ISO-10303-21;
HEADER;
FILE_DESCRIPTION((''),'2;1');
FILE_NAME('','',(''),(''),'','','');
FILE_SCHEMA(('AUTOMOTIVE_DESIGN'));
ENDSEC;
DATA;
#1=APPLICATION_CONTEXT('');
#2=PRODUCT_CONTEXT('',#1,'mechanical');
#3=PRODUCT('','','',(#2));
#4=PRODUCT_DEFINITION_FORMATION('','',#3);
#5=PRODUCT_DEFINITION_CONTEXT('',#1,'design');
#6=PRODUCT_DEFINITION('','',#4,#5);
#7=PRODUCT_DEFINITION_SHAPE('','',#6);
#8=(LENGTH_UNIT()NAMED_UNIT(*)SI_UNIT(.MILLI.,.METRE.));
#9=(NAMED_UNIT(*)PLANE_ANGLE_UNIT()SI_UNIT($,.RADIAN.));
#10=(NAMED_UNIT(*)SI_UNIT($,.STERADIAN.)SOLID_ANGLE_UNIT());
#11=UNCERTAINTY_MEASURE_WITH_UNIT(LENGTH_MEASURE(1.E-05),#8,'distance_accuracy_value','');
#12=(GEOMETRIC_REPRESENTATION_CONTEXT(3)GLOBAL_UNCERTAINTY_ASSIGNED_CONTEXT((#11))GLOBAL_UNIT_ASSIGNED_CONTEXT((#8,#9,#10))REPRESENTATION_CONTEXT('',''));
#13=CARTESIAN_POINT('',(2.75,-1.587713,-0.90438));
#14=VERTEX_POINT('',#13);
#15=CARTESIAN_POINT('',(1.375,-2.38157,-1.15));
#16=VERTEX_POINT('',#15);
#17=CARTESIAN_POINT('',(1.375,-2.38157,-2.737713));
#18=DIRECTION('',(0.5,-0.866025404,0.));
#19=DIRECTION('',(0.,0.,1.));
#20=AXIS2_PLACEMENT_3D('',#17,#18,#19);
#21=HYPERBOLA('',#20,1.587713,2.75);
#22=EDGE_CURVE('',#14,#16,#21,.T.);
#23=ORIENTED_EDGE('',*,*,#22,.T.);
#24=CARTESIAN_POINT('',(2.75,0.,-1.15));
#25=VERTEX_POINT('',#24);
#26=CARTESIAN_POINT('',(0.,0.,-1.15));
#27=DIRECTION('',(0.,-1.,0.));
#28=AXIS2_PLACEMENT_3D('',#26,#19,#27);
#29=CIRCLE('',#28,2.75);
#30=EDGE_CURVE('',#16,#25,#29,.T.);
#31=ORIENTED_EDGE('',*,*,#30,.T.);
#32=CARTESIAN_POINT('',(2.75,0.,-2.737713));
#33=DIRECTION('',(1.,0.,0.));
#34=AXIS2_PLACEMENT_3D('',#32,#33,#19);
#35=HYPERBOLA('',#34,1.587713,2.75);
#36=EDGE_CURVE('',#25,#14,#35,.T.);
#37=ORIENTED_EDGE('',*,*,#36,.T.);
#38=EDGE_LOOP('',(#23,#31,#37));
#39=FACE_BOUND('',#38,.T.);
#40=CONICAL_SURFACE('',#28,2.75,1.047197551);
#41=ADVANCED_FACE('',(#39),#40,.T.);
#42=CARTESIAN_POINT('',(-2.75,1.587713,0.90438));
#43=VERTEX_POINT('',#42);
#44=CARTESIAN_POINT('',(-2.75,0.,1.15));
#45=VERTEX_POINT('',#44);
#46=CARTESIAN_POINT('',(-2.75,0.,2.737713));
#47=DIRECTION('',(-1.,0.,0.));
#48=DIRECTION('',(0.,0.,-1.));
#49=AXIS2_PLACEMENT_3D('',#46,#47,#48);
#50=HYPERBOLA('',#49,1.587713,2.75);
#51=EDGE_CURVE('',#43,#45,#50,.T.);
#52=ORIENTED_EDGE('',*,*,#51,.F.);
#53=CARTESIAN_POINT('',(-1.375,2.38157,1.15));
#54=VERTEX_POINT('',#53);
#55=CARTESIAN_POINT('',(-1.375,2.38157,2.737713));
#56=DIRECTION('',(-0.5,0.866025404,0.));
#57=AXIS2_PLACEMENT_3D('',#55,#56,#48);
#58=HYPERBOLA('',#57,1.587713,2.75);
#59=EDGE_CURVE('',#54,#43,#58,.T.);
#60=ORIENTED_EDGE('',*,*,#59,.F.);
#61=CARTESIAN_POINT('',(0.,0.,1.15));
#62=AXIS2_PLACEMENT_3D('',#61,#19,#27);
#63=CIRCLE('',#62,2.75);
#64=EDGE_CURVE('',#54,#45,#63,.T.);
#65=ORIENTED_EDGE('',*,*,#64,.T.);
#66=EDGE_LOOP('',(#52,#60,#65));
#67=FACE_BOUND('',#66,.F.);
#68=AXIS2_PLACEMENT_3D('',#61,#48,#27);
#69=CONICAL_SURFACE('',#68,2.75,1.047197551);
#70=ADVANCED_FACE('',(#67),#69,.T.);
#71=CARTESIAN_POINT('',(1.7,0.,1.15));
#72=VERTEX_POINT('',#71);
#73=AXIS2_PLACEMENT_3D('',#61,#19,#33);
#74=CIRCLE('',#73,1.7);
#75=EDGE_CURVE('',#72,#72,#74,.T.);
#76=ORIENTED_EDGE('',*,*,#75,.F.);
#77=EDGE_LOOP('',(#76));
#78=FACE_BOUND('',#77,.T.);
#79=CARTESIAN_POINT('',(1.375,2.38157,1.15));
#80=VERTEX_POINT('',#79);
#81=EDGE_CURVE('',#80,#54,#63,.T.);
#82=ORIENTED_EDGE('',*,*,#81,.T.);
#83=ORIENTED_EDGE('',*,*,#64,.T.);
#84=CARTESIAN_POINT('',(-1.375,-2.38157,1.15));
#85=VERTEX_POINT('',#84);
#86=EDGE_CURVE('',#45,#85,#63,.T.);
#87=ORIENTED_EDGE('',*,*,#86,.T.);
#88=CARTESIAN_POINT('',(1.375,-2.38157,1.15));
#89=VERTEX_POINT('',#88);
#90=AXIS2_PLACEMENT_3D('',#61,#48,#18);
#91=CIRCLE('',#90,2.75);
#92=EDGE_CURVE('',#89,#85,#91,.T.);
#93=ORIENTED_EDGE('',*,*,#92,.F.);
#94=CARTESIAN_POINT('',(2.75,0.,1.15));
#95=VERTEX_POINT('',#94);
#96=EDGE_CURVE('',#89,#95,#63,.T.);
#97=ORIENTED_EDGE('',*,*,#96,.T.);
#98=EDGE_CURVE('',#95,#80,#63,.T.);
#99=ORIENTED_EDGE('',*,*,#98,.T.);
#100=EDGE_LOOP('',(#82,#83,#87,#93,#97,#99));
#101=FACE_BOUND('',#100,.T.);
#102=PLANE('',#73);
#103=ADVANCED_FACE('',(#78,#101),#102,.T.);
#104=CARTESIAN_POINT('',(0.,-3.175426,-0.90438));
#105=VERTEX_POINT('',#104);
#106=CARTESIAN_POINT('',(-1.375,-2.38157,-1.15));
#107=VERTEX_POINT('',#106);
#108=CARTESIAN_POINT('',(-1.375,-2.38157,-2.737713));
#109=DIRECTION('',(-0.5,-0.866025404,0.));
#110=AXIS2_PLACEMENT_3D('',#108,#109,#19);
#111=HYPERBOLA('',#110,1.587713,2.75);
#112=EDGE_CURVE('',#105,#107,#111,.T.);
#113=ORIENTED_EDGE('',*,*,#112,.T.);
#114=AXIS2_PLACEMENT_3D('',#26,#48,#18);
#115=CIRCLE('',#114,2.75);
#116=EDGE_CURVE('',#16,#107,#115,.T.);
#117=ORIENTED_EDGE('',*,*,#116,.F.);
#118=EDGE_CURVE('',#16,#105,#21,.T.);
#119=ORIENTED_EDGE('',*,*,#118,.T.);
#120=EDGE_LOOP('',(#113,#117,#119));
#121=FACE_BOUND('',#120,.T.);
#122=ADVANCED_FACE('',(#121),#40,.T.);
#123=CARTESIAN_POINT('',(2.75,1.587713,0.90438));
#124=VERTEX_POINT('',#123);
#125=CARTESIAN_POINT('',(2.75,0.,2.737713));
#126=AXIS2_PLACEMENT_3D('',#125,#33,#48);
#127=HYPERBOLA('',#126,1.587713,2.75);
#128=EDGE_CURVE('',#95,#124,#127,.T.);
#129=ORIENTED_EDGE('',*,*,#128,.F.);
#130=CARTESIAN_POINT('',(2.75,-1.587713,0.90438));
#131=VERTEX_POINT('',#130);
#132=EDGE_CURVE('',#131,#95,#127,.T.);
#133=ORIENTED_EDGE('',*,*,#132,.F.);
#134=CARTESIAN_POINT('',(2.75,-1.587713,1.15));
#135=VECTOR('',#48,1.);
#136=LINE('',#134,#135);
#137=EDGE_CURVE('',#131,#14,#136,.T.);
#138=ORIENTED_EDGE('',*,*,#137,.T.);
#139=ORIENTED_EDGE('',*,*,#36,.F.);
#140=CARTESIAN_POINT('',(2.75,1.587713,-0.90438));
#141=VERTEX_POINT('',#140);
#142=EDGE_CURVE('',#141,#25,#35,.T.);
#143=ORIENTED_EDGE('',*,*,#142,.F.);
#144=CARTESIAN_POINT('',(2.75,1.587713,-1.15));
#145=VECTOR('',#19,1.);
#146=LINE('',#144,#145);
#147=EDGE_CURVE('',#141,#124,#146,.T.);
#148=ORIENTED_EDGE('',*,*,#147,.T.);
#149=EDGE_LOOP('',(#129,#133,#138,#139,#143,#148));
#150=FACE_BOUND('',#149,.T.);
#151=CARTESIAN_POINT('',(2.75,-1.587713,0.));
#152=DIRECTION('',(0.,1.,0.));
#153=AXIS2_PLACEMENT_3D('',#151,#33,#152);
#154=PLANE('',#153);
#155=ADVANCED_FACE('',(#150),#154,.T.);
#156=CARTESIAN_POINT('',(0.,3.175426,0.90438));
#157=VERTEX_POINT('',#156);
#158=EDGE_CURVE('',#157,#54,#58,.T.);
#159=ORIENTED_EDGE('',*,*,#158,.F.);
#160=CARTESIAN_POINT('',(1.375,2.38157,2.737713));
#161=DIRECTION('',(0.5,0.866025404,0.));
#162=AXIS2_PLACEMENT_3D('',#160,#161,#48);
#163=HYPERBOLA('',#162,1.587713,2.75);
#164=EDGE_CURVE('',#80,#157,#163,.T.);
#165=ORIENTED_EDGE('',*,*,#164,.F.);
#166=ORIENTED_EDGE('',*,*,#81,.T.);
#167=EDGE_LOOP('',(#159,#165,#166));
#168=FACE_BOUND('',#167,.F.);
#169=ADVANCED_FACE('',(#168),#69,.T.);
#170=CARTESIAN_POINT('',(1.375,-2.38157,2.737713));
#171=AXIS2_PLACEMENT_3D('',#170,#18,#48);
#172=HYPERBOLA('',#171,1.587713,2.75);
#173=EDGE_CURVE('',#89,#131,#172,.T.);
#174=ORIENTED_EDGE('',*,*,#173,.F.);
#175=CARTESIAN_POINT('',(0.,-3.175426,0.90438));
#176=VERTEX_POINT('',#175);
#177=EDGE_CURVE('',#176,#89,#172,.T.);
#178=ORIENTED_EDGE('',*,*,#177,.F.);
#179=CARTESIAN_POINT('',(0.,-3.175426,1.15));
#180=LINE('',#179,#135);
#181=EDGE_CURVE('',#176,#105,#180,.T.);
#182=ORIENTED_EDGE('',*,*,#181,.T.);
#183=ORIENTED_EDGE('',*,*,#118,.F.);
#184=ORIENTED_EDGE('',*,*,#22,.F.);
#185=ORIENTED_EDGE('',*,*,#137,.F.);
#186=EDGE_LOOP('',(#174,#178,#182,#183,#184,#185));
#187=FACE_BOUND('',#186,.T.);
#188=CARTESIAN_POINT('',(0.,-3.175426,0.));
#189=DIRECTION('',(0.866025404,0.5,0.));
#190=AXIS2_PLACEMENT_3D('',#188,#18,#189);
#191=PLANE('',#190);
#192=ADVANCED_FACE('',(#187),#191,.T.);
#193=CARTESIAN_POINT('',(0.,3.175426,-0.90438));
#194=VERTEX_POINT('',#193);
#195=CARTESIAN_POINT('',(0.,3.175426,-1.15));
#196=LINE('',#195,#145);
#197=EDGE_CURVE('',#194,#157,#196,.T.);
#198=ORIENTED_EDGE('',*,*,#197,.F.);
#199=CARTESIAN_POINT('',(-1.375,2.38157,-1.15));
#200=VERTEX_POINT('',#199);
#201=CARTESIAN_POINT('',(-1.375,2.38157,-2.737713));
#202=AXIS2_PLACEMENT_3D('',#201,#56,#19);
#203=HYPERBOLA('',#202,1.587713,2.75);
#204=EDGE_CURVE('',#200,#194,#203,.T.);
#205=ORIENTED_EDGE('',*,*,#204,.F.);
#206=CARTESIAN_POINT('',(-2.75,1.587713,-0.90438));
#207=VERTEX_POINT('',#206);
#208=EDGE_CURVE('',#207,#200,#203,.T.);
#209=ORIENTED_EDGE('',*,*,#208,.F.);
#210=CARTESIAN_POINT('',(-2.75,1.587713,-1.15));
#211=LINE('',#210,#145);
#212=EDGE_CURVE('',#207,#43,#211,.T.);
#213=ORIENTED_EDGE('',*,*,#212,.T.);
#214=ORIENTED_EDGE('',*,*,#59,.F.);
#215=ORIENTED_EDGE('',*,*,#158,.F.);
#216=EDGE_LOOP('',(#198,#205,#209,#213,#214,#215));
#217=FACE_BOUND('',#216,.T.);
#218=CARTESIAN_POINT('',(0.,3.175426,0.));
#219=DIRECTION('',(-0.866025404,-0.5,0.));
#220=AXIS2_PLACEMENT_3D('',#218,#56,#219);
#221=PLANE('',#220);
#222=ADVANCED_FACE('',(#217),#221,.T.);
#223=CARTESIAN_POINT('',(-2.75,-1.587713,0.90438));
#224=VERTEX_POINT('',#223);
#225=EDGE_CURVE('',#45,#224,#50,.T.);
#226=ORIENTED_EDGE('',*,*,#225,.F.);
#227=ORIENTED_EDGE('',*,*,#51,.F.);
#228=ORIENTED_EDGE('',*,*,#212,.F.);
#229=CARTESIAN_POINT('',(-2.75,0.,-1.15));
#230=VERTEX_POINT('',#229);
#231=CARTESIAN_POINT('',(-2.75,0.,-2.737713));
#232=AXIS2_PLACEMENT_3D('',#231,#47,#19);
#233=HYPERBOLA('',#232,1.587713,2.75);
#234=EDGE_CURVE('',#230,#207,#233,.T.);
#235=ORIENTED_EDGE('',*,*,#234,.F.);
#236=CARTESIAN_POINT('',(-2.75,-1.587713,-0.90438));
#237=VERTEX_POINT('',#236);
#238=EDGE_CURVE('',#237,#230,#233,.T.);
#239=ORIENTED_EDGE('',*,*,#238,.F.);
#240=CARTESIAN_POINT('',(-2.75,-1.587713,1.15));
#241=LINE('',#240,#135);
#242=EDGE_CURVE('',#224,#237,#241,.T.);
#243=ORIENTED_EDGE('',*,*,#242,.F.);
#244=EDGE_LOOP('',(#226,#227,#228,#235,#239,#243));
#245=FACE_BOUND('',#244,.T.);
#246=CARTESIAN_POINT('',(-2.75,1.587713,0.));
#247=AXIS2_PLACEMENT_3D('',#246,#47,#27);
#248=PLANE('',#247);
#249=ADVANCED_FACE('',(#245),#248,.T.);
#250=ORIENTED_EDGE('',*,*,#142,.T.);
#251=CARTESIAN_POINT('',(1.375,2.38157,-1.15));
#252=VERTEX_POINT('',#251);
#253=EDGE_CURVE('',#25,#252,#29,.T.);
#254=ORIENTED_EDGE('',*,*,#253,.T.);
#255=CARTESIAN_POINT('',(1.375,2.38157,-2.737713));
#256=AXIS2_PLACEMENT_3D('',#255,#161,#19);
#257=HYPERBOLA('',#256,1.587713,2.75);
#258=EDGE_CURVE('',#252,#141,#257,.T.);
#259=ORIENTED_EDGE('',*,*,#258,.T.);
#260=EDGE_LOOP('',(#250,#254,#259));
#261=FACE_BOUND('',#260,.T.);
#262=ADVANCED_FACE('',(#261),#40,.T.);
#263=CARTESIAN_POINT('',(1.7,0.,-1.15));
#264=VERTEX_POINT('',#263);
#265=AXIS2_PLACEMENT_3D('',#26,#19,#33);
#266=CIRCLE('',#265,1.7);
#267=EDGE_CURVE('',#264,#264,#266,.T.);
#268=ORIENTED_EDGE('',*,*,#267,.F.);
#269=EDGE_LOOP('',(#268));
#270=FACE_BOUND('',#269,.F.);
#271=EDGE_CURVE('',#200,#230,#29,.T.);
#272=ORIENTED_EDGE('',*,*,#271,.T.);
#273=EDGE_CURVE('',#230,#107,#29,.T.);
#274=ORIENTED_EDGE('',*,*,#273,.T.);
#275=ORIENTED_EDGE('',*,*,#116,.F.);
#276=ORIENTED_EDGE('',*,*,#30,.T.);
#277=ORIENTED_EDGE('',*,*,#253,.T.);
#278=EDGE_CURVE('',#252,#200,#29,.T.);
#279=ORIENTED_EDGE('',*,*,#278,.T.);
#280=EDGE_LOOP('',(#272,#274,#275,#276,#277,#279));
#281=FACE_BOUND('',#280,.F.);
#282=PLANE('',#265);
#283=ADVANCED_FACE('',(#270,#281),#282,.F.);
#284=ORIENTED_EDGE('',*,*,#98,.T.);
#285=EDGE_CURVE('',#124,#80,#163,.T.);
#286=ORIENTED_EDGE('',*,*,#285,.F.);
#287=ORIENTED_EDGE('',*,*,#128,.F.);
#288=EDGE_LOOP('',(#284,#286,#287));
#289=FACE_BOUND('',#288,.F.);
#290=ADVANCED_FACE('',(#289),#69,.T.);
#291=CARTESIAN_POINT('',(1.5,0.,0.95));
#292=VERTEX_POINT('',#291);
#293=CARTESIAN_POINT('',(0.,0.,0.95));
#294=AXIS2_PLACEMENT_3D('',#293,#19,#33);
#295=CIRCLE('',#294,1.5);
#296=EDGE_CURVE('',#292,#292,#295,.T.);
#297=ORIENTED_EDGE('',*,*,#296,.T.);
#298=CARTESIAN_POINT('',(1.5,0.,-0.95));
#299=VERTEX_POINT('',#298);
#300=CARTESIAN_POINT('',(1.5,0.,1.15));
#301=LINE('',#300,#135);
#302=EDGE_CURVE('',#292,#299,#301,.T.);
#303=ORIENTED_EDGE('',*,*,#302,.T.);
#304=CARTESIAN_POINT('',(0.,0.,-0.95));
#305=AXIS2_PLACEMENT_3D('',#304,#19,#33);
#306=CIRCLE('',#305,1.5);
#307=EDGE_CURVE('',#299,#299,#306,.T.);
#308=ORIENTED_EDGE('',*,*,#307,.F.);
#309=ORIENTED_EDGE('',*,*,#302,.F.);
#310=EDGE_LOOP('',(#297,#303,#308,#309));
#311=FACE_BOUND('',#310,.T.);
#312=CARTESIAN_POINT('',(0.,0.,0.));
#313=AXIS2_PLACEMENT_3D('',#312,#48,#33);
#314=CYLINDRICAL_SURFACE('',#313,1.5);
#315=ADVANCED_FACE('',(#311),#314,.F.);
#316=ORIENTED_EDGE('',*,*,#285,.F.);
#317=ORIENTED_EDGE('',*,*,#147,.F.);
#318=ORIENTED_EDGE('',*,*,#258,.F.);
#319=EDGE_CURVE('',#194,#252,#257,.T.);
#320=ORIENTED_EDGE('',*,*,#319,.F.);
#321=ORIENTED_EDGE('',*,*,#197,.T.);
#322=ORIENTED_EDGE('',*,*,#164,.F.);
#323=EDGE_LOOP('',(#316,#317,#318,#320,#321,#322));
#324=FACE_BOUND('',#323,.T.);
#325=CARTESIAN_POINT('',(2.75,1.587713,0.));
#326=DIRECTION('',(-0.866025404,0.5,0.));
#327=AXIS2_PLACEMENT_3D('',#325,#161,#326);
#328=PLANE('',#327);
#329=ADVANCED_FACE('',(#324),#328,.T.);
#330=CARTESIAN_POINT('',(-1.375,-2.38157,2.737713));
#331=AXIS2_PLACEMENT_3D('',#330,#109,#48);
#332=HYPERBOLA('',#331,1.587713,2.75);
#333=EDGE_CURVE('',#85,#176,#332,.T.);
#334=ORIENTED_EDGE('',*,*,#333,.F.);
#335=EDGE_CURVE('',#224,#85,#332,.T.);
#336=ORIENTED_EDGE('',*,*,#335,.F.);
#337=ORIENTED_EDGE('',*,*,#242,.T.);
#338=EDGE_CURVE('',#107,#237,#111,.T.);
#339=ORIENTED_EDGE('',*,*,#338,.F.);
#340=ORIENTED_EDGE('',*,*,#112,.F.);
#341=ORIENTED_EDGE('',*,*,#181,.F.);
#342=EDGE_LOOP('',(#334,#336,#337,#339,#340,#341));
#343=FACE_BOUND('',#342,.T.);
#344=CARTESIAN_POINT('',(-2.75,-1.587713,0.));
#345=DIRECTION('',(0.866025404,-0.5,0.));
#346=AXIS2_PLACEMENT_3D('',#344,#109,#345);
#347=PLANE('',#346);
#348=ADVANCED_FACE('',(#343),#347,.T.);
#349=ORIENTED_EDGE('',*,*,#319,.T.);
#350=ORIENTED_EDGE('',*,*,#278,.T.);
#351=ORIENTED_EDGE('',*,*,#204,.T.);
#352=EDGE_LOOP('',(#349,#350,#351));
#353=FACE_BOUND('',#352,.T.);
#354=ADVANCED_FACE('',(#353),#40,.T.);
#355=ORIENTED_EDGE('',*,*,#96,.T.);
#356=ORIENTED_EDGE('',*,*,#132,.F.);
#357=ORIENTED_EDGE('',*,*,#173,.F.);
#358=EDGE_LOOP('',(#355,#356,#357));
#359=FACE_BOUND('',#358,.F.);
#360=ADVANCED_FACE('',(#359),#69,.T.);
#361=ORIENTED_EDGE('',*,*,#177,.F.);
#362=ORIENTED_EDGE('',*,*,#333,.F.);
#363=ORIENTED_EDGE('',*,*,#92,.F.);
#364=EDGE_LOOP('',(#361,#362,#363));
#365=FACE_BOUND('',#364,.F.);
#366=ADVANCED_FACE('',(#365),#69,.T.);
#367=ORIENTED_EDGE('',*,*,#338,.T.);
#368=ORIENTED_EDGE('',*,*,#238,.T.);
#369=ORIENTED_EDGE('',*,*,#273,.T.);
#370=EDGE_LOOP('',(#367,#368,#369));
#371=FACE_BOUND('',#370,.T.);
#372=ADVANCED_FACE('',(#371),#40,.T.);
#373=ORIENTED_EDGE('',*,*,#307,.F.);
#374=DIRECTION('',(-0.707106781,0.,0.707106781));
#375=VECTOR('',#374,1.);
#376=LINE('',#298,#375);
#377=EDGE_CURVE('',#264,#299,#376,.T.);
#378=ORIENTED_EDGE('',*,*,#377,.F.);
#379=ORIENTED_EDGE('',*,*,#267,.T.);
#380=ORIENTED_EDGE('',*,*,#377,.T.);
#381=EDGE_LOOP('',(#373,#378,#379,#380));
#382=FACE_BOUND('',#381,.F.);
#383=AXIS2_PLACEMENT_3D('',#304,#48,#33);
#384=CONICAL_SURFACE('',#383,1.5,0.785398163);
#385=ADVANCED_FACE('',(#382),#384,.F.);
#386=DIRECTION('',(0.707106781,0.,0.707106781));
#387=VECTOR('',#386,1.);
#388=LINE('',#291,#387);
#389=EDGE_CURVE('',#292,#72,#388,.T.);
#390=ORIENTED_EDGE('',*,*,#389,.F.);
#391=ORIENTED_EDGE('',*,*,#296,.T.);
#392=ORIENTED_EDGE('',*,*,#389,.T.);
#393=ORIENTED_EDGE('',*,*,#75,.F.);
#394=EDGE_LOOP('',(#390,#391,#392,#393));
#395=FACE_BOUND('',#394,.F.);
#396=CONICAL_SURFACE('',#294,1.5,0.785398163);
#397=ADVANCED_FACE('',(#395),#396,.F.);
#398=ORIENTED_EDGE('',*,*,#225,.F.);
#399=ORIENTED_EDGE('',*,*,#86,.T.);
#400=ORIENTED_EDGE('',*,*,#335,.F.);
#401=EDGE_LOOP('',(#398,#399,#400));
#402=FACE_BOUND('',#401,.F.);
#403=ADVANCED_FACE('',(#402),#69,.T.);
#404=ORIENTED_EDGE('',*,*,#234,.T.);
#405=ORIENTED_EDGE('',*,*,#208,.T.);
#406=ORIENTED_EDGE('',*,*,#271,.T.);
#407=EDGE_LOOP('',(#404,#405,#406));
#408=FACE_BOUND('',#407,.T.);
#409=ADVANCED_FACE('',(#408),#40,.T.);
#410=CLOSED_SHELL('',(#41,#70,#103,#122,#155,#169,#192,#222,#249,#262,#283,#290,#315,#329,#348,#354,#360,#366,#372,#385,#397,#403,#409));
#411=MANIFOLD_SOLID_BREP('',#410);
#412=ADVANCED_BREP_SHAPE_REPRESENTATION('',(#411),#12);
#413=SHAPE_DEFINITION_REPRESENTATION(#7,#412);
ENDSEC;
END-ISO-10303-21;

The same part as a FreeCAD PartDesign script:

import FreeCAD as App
import Part
import Sketcher
from FreeCAD import Vector
Q = App.Units.Quantity


def edges_at(feature, points):
    """Names of the edges that pass closest to the given points."""
    edges = feature.Shape.Edges
    near = lambda p: min(range(len(edges)), key=lambda i: edges[i].distToShape(Part.Vertex(*p))[0])
    return sorted({f"Edge{near(p) + 1}" for p in points})

doc = App.newDocument("Part")
body = doc.addObject("PartDesign::Body", "Body")

sketch1 = doc.addObject("Sketcher::SketchObject", "Sketch")
body.addObject(sketch1)
sketch1.AttachmentSupport = (doc.XY_Plane, [""])
sketch1.MapMode = "FlatFace"
sketch1.addGeometry(Part.LineSegment(Vector(2.8, -1.6, 0), Vector(2.8, 1.6, 0)), False)
sketch1.addGeometry(Part.LineSegment(Vector(2.8, 1.6, 0), Vector(0, 3.2, 0)), False)
sketch1.addGeometry(Part.LineSegment(Vector(0, 3.2, 0), Vector(-2.8, 1.6, 0)), False)
sketch1.addGeometry(Part.LineSegment(Vector(-2.8, 1.6, 0), Vector(-2.8, -1.6, 0)), False)
sketch1.addGeometry(Part.LineSegment(Vector(-2.8, -1.6, 0), Vector(0, -3.2, 0)), False)
sketch1.addGeometry(Part.LineSegment(Vector(0, -3.2, 0), Vector(2.8, -1.6, 0)), False)
sketch1.addGeometry(Part.Circle(Vector(0, 0, 0), Vector(0, 0, 1), 1.5), False)
sketch1.addConstraint(Sketcher.Constraint("Coincident", 0, 2, 1, 1))
sketch1.addConstraint(Sketcher.Constraint("Coincident", 1, 2, 2, 1))
sketch1.addConstraint(Sketcher.Constraint("Coincident", 2, 2, 3, 1))
sketch1.addConstraint(Sketcher.Constraint("Coincident", 3, 2, 4, 1))
sketch1.addConstraint(Sketcher.Constraint("Coincident", 4, 2, 5, 1))
sketch1.addConstraint(Sketcher.Constraint("Coincident", 5, 2, 0, 1))
sketch1.addConstraint(Sketcher.Constraint("Vertical", 0))
sketch1.addConstraint(Sketcher.Constraint("Vertical", 3))
sketch1.addConstraint(Sketcher.Constraint("Coincident", 6, 3, -1, 1))
sketch1.addConstraint(Sketcher.Constraint("Symmetric", 0, 2, 3, 2, -1, 1))
sketch1.addConstraint(Sketcher.Constraint("Symmetric", 1, 2, 4, 2, -1, 1))
sketch1.addConstraint(Sketcher.Constraint("PointOnObject", 1, 2, -2))
sketch1.addConstraint(Sketcher.Constraint("Parallel", 2, 5))
sketch1.addConstraint(Sketcher.Constraint("Horizontal", 0, 2, 2, 2))
sketch1.addConstraint(Sketcher.Constraint("Diameter", 6, Q("3 mm")))
sketch1.addConstraint(Sketcher.Constraint("Angle", 1, Q("150 deg")))
sketch1.addConstraint(Sketcher.Constraint("DistanceX", 2, 2, 0, 2, Q("5.5 mm")))
sketch1.addConstraint(Sketcher.Constraint("DistanceY", 0, 1, 0, 2, Q("3.175426 mm")))
pad1 = doc.addObject("PartDesign::Pad", "Pad")
body.addObject(pad1)
pad1.Profile = sketch1
pad1.Length = 2.3
pad1.Midplane = True

sketch2 = doc.addObject("Sketcher::SketchObject", "Sketch001")
body.addObject(sketch2)
sketch2.AttachmentSupport = (doc.YZ_Plane, [""])
sketch2.MapMode = "FlatFace"
sketch2.addGeometry(Part.LineSegment(Vector(-3.5, 0.72, 0), Vector(-2.75, 1.15, 0)), False)
sketch2.addGeometry(Part.LineSegment(Vector(-2.75, 1.15, 0), Vector(-3.5, 1.15, 0)), False)
sketch2.addGeometry(Part.LineSegment(Vector(-3.5, 1.15, 0), Vector(-3.5, 0.72, 0)), False)
sketch2.addGeometry(Part.LineSegment(Vector(-2.75, -1.15, 0), Vector(-3.5, -0.72, 0)), False)
sketch2.addGeometry(Part.LineSegment(Vector(-3.5, -0.72, 0), Vector(-3.5, -1.15, 0)), False)
sketch2.addGeometry(Part.LineSegment(Vector(-3.5, -1.15, 0), Vector(-2.75, -1.15, 0)), False)
sketch2.addConstraint(Sketcher.Constraint("Coincident", 0, 2, 1, 1))
sketch2.addConstraint(Sketcher.Constraint("Coincident", 1, 2, 2, 1))
sketch2.addConstraint(Sketcher.Constraint("Coincident", 2, 2, 0, 1))
sketch2.addConstraint(Sketcher.Constraint("Coincident", 3, 2, 4, 1))
sketch2.addConstraint(Sketcher.Constraint("Coincident", 4, 2, 5, 1))
sketch2.addConstraint(Sketcher.Constraint("Coincident", 5, 2, 3, 1))
sketch2.addConstraint(Sketcher.Constraint("Horizontal", 1))
sketch2.addConstraint(Sketcher.Constraint("Vertical", 2))
sketch2.addConstraint(Sketcher.Constraint("Vertical", 4))
sketch2.addConstraint(Sketcher.Constraint("Horizontal", 5))
sketch2.addConstraint(Sketcher.Constraint("Symmetric", 2, 2, 3, 2, -1))
sketch2.addConstraint(Sketcher.Constraint("Symmetric", 0, 2, 5, 2, -1))
sketch2.addConstraint(Sketcher.Constraint("Angle", 0, Q("30 deg")))
sketch2.addConstraint(Sketcher.Constraint("DistanceX", 1, 2, 1, 1, Q("0.75 mm")))
sketch2.addConstraint(Sketcher.Constraint("DistanceX", 1, 2, -1, 1, Q("3.5 mm")))
sketch2.addConstraint(Sketcher.Constraint("DistanceY", 4, 2, 1, 2, Q("2.3 mm")))
groove = doc.addObject("PartDesign::Groove", "Groove")
body.addObject(groove)
groove.Profile = sketch2
groove.ReferenceAxis = (sketch2, ["V_Axis"])
groove.Angle = 360
doc.recompute()

chamfer = doc.addObject("PartDesign::Chamfer", "Chamfer")
body.addObject(chamfer)
chamfer.Base = (groove, edges_at(groove, [(-1.5, 0, 1.15), (-1.5, 0, -1.15)]))
chamfer.Size = 0.2

doc.recompute()
